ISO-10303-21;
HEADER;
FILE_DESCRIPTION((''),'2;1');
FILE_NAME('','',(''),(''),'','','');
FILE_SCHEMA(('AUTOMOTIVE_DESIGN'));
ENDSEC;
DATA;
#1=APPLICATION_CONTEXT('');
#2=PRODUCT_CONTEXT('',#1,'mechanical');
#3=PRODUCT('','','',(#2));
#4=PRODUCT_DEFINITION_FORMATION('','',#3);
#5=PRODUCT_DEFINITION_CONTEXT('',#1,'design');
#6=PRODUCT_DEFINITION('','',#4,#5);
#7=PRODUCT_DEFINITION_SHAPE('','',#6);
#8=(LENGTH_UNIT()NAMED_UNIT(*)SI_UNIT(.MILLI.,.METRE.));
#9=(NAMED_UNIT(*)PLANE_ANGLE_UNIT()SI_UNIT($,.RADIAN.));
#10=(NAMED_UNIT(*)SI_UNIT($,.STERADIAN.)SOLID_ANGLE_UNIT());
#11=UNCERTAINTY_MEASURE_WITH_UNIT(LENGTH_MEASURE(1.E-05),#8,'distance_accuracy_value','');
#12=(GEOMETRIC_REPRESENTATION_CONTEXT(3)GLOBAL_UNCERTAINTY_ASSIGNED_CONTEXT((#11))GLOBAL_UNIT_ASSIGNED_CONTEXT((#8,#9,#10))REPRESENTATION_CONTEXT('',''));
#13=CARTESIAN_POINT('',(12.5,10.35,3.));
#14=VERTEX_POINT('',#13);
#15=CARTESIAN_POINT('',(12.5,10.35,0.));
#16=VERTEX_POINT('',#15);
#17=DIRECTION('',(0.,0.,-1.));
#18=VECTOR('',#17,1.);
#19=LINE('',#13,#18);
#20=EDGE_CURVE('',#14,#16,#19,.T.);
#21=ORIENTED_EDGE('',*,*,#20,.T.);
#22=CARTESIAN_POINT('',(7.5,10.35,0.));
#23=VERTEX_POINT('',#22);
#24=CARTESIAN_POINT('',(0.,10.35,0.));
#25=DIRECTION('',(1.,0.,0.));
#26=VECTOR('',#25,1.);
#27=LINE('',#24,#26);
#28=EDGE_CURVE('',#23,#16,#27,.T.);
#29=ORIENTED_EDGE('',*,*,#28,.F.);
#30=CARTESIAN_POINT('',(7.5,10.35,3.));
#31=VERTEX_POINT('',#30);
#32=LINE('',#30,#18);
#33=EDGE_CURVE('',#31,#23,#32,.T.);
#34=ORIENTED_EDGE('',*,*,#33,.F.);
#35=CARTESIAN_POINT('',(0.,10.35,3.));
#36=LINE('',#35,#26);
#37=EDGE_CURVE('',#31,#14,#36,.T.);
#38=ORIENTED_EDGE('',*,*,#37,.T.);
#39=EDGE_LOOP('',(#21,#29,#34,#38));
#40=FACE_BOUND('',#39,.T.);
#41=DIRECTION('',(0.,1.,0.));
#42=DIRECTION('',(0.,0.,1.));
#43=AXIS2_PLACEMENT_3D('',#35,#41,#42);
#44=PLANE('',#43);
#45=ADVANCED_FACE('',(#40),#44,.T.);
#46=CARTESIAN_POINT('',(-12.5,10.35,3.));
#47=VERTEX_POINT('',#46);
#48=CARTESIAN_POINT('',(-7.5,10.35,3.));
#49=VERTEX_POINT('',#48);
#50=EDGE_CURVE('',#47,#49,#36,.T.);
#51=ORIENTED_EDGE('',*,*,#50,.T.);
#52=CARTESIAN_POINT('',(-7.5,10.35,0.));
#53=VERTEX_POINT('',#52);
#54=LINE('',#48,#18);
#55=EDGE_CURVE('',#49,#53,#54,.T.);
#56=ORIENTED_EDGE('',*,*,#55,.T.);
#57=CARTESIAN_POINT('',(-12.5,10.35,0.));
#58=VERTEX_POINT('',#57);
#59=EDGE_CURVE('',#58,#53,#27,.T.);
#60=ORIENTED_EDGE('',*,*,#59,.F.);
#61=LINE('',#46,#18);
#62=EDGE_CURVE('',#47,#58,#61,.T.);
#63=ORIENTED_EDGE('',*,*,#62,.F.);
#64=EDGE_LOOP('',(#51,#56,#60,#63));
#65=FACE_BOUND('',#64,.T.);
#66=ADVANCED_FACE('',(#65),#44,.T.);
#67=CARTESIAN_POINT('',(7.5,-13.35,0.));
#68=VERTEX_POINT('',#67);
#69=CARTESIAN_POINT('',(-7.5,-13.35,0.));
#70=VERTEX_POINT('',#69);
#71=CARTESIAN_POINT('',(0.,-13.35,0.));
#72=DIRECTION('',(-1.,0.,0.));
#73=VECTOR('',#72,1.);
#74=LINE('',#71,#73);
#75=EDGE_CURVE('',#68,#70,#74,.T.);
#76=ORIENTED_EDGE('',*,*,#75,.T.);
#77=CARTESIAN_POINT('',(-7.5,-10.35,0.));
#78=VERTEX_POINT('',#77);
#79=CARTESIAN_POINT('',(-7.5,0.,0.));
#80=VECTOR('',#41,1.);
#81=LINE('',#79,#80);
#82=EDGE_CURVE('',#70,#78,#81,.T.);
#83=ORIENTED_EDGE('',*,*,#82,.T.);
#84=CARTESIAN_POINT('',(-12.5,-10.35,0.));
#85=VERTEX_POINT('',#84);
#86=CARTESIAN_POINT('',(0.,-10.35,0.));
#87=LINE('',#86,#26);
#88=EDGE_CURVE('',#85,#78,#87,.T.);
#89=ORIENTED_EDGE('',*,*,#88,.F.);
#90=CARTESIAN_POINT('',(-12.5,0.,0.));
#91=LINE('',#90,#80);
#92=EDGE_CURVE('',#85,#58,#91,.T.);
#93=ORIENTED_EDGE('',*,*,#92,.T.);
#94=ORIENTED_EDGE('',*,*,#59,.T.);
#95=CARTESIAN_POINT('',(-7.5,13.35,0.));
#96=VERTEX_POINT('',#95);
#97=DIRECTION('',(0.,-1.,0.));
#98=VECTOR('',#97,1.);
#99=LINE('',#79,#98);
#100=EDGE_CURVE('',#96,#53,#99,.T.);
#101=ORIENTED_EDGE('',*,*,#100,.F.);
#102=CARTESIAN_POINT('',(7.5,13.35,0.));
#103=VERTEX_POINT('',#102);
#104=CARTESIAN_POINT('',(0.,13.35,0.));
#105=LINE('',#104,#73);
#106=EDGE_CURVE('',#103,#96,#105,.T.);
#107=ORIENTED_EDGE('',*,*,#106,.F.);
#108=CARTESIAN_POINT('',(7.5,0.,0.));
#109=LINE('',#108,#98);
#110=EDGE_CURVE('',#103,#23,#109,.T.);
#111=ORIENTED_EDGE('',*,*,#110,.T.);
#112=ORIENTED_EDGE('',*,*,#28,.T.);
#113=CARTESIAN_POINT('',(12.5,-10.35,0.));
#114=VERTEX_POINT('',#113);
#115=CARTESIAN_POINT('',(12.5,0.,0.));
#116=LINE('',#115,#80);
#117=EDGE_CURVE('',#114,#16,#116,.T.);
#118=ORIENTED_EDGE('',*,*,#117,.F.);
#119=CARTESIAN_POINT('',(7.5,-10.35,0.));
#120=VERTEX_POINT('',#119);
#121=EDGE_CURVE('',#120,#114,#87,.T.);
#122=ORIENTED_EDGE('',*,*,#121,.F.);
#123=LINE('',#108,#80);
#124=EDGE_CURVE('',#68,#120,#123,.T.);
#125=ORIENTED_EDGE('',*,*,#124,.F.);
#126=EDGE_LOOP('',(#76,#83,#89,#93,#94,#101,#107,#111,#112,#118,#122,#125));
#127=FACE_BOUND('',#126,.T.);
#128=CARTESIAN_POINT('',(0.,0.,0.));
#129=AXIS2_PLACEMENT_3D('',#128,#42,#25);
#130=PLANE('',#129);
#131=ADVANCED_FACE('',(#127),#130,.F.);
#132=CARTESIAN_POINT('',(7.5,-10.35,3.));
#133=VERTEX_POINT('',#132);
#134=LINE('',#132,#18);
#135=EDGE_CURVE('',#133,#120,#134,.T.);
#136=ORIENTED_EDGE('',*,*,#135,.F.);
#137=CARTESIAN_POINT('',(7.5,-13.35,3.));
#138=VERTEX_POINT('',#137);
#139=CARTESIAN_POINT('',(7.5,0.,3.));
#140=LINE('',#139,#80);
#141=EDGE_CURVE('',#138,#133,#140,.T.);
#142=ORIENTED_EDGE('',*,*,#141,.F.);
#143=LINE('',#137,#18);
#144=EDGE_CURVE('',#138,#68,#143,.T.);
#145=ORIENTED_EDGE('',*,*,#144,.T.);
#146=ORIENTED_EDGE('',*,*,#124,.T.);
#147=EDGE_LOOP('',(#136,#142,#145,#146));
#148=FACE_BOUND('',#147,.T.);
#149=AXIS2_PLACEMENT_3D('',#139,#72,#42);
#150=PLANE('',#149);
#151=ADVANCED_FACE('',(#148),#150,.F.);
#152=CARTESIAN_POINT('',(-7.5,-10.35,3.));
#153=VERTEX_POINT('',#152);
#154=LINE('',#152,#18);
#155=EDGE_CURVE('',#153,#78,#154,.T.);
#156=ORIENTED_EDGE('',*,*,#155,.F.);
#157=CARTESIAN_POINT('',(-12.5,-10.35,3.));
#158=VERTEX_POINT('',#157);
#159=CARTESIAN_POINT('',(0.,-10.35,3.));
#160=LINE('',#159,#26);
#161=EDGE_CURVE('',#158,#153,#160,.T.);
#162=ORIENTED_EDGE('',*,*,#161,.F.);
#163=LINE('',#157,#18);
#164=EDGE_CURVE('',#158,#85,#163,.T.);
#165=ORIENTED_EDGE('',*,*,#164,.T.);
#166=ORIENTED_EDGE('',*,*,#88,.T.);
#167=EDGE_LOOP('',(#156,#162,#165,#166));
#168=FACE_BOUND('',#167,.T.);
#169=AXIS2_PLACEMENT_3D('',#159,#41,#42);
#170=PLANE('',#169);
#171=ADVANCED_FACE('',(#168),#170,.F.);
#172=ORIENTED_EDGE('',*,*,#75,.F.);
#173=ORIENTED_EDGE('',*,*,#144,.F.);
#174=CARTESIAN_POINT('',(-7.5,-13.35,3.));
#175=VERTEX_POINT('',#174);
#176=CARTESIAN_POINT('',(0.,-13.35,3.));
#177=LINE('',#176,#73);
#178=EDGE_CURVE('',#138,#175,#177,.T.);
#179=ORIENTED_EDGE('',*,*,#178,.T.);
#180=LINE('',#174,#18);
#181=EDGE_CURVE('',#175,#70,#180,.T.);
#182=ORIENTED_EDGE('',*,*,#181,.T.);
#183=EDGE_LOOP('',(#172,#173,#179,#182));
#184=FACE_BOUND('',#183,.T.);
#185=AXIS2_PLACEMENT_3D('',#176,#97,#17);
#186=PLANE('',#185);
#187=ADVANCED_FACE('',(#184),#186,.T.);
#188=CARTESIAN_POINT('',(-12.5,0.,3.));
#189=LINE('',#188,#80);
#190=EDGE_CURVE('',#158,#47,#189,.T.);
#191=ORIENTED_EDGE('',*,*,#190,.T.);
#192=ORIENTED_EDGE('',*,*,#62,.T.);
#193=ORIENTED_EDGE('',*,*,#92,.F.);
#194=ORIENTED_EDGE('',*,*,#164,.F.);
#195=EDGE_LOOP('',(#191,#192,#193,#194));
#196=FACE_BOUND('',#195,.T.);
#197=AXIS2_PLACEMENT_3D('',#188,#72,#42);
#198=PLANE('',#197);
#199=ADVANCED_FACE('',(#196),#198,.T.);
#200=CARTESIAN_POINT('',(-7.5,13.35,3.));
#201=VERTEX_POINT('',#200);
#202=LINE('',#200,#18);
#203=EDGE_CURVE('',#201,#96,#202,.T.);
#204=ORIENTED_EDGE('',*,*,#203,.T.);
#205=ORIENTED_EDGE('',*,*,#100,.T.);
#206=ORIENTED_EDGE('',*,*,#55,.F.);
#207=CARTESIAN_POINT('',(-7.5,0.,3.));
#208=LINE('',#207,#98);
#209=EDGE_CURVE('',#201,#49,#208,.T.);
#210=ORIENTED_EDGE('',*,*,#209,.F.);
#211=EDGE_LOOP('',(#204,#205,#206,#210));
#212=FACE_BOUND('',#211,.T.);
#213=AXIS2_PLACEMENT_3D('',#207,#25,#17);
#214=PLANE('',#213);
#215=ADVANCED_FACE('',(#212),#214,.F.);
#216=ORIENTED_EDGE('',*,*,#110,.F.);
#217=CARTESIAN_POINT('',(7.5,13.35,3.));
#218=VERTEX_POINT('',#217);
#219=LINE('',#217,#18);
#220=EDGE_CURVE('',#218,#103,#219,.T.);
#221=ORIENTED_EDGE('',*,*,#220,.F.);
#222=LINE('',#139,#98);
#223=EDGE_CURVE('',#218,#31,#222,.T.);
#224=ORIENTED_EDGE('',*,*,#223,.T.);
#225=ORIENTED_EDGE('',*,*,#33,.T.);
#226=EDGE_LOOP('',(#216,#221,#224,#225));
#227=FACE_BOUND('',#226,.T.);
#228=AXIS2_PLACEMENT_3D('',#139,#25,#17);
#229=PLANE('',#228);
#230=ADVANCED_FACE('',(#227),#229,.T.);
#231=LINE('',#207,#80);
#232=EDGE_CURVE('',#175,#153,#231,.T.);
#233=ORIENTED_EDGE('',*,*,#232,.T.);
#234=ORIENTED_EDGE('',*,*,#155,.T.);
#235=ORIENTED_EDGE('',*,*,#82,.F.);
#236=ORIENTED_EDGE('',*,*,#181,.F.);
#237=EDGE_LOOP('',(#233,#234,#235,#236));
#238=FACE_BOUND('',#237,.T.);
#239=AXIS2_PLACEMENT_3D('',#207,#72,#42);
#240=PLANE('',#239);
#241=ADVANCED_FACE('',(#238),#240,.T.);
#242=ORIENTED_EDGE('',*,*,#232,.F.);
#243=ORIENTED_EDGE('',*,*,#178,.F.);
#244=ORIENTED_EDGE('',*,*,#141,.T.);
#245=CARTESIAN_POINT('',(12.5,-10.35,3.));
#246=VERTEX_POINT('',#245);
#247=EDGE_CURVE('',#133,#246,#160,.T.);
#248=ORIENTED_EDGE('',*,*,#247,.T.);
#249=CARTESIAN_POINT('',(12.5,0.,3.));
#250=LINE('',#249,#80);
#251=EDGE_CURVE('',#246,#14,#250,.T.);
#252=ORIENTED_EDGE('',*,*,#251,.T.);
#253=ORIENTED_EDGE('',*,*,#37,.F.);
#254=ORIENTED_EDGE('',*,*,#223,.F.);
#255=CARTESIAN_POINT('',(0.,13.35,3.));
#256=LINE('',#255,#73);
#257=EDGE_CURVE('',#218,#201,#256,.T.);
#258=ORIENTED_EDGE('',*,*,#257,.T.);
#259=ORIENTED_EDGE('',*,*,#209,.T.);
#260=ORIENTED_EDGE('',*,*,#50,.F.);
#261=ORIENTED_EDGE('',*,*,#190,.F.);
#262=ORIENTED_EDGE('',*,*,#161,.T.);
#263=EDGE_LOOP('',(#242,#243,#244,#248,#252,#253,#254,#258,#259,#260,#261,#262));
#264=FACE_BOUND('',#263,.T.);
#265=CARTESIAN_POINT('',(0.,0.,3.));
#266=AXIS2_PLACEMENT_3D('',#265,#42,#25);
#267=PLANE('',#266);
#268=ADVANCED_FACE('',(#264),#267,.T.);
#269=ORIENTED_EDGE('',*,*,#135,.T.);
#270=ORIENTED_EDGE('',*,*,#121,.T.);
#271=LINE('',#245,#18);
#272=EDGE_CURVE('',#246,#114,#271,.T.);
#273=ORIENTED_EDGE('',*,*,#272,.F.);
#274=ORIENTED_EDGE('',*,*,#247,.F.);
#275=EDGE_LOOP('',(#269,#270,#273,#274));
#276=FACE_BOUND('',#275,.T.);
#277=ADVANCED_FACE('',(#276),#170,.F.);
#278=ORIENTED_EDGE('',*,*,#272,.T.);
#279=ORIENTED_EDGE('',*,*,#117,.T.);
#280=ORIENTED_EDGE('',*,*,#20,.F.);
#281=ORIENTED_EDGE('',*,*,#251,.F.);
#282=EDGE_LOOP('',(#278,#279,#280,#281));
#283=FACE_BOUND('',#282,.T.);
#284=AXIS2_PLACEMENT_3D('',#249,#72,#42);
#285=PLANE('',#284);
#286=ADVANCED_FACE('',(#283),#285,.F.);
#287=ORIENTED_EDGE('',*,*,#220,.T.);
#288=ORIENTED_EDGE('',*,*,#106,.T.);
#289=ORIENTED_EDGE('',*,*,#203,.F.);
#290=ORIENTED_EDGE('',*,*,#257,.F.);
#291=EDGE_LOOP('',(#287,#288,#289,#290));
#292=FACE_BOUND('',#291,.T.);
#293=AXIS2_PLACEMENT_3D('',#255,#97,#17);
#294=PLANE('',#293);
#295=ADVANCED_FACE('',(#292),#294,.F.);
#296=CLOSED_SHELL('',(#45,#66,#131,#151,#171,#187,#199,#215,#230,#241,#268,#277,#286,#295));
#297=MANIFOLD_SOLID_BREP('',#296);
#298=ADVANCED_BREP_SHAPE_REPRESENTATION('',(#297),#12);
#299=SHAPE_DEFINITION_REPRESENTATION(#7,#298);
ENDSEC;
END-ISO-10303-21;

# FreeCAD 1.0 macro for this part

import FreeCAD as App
import Part
import Sketcher

V = App.Vector


def add_polygon(sketch, points):
    """Adds a closed chain of lines whose ends are joined by coincident constraints."""
    first, n = sketch.GeometryCount, len(points)
    for a, b in zip(points, points[1:] + points[:1]):
        sketch.addGeometry(Part.LineSegment(App.Vector(*a, 0), App.Vector(*b, 0)), False)
    for i in range(n):
        sketch.addConstraint(Sketcher.Constraint("Coincident", first + i, 2, first + (i + 1) % n, 1))

doc = App.newDocument("Part")
body = doc.addObject("PartDesign::Body", "Body")

# Sketch on XY plane
sketch1 = doc.addObject("Sketcher::SketchObject", "Sketch")
body.addObject(sketch1)
sketch1.AttachmentSupport = (doc.XY_Plane, [""])
sketch1.MapMode = "FlatFace"
add_polygon(sketch1, [(-12.5, 10.3), (-12.5, -10.3), (-7.5, -10.3), (-7.5, -13.3), (7.5, -13.3), (7.5, -10.3), (12.5, -10.3), (12.5, 10.3), (7.5, 10.3), (7.5, 13.3), (-7.5, 13.3), (-7.5, 10.3)])  # lines 0-11
sketch1.addConstraint([
    Sketcher.Constraint("Vertical", 0),
    Sketcher.Constraint("Horizontal", 1),
    Sketcher.Constraint("Vertical", 2),
    Sketcher.Constraint("Horizontal", 3),
    Sketcher.Constraint("Vertical", 4),
    Sketcher.Constraint("Horizontal", 5),
    Sketcher.Constraint("Vertical", 6),
    Sketcher.Constraint("Horizontal", 7),
    Sketcher.Constraint("Vertical", 8),
    Sketcher.Constraint("Horizontal", 9),
    Sketcher.Constraint("Vertical", 10),
    Sketcher.Constraint("Horizontal", 11),
    Sketcher.Constraint("Symmetric", 0, 2, 6, 2, -1, 1),
    Sketcher.Constraint("Symmetric", 2, 2, 8, 2, -1, 1),
    Sketcher.Constraint("Symmetric", 4, 2, 10, 2, -1, 1),
    Sketcher.Constraint("Symmetric", 1, 2, 4, 2, -2),
    Sketcher.Constraint("DistanceX", 1, 1, 1, 2, 5.0),
    Sketcher.Constraint("DistanceX", 3, 1, 3, 2, 15.0),
    Sketcher.Constraint("DistanceY", 2, 2, 2, 1, 3.0),
    Sketcher.Constraint("DistanceY", 0, 2, 0, 1, 20.7),
])
pad1 = doc.addObject("PartDesign::Pad", "Pad")
body.addObject(pad1)
pad1.Profile = sketch1
pad1.Length = 3

doc.recompute()
